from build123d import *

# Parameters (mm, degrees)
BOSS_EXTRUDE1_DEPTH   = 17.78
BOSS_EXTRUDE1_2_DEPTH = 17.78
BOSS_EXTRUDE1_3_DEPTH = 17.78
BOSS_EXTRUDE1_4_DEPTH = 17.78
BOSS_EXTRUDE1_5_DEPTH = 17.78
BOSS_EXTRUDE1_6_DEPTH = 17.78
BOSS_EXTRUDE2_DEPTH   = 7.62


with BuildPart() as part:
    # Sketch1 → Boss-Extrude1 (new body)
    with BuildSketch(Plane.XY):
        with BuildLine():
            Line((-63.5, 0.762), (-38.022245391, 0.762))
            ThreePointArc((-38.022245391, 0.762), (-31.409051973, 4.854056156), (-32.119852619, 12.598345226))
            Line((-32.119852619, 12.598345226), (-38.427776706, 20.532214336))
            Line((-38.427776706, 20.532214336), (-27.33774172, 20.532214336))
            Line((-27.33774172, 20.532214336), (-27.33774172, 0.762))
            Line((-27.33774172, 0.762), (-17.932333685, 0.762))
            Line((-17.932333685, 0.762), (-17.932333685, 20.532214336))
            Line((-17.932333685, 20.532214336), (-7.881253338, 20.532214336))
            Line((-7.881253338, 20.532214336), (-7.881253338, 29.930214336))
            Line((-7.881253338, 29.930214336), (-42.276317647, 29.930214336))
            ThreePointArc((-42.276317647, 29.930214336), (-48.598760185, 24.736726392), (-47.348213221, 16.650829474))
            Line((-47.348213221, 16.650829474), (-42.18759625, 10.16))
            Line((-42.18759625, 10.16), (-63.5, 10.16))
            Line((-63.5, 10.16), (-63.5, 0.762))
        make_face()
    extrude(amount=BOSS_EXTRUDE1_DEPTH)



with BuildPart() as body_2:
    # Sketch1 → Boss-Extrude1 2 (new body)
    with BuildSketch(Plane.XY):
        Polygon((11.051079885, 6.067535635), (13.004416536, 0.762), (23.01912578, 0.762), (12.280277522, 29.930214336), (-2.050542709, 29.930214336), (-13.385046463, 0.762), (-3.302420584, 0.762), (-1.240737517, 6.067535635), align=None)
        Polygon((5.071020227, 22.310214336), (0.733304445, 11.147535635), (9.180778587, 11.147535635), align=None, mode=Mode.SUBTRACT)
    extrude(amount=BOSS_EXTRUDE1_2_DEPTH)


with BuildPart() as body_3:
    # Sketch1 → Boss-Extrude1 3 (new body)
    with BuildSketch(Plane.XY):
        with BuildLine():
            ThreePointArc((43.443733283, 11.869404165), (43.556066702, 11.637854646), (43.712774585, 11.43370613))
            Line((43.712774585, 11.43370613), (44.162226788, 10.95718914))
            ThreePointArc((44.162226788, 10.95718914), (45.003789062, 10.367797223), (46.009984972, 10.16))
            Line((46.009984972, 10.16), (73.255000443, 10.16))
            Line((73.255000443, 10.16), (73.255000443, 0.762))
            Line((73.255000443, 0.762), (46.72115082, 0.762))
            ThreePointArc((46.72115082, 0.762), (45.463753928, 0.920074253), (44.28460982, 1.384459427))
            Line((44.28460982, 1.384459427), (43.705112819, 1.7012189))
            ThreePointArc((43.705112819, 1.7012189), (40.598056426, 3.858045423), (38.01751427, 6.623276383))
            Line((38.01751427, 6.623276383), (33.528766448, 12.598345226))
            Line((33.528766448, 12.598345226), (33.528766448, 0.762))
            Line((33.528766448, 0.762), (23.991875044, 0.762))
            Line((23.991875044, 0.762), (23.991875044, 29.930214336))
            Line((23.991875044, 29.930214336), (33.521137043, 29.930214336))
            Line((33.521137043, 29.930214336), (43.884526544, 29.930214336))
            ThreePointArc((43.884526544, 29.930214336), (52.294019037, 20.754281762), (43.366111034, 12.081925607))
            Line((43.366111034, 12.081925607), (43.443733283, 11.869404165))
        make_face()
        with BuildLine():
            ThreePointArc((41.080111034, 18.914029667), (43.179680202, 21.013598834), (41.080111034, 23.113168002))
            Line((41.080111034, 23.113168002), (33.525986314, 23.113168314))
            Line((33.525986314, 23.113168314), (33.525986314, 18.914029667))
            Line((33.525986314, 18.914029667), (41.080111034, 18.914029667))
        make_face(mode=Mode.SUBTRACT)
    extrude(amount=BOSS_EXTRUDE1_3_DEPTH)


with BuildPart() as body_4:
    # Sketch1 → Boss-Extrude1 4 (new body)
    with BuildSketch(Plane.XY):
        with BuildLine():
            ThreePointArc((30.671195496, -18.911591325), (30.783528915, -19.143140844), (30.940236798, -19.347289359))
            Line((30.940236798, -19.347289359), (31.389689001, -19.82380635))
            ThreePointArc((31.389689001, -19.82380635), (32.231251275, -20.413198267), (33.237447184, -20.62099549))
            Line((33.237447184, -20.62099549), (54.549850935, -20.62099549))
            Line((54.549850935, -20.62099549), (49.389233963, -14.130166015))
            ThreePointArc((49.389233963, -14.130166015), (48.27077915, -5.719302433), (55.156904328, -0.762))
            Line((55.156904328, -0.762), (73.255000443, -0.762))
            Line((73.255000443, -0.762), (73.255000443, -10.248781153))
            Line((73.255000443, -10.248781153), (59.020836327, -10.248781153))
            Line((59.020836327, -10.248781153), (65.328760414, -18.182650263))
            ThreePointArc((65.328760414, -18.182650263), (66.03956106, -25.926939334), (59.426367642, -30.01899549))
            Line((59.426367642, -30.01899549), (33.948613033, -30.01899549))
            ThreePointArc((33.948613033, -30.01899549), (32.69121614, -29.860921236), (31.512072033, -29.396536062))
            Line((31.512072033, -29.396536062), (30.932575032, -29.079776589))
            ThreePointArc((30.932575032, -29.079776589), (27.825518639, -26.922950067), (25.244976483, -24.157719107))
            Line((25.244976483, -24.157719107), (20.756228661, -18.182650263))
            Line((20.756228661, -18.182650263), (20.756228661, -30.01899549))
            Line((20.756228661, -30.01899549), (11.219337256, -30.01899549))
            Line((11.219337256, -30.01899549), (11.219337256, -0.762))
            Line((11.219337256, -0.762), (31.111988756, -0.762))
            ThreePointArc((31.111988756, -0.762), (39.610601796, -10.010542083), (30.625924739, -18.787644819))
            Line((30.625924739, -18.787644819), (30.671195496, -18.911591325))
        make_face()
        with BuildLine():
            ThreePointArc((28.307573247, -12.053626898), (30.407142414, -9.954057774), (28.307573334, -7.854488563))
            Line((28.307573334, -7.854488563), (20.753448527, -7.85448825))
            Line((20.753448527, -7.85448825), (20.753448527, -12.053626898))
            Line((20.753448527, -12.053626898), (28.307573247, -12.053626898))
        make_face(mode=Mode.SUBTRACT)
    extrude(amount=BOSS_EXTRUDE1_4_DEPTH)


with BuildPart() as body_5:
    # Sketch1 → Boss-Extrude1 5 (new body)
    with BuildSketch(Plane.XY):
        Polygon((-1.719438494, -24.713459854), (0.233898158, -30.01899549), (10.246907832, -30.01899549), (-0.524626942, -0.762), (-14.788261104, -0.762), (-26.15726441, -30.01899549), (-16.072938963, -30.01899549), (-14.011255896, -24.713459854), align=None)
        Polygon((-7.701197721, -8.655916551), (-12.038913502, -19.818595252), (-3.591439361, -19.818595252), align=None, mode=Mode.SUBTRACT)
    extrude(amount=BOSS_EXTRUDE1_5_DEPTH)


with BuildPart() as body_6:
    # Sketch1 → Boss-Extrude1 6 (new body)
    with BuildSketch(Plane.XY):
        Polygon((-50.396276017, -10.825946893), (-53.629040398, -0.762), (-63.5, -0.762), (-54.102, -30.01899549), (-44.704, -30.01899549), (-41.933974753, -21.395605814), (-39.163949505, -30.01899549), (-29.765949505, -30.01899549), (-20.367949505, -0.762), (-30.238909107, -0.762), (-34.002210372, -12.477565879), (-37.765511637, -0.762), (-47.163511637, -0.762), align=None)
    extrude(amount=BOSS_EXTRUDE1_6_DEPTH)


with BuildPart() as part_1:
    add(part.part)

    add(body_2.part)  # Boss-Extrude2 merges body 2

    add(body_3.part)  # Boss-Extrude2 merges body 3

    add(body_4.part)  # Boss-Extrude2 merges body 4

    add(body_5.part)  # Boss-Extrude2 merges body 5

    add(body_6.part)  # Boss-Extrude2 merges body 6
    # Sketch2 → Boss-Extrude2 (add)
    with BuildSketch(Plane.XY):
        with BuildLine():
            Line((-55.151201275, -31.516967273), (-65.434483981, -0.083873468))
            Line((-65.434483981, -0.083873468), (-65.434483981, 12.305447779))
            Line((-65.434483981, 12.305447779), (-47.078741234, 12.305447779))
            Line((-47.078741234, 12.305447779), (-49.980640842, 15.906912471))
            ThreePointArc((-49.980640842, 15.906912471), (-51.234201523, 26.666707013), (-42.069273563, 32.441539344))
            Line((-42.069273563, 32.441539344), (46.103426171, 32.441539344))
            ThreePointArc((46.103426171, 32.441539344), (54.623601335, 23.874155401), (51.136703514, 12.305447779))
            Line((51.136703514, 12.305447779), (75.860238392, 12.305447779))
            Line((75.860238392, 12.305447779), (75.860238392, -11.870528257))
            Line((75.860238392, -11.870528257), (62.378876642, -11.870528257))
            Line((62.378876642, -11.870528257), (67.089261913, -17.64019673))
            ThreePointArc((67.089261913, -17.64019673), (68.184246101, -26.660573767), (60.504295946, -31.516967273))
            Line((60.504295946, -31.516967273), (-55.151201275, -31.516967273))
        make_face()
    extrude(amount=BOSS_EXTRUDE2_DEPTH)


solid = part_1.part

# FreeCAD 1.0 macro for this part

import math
import FreeCAD as App
import Part
import Sketcher
Q = App.Units.Quantity


def add_polygon(sketch, points):
    """Adds a closed chain of lines whose ends are joined by coincident constraints."""
    first, n = sketch.GeometryCount, len(points)
    for a, b in zip(points, points[1:] + points[:1]):
        sketch.addGeometry(Part.LineSegment(App.Vector(*a, 0), App.Vector(*b, 0)), False)
    for i in range(n):
        sketch.addConstraint(Sketcher.Constraint("Coincident", first + i, 2, first + (i + 1) % n, 1))

doc = App.newDocument("Part")
body = doc.addObject("PartDesign::Body", "Body")

sketch1 = doc.addObject("Sketcher::SketchObject", "Sketch")
body.addObject(sketch1)
sketch1.AttachmentSupport = (doc.XY_Plane, [""])
sketch1.MapMode = "FlatFace"
sketch1.addGeometry(Part.LineSegment(App.Vector(-64, 1, 0), App.Vector(-38, 1, 0)), False)
sketch1.addGeometry(Part.ArcOfCircle(Part.Circle(App.Vector(-38, 8, 0), App.Vector(0, 0, 1), 7), math.radians(-90), math.radians(37)), False)
sketch1.addGeometry(Part.LineSegment(App.Vector(-32, 13, 0), App.Vector(-38, 21, 0)), False)
sketch1.addGeometry(Part.LineSegment(App.Vector(-38, 21, 0), App.Vector(-27, 21, 0)), False)
sketch1.addGeometry(Part.LineSegment(App.Vector(-27, 21, 0), App.Vector(-27, 1, 0)), False)
sketch1.addGeometry(Part.LineSegment(App.Vector(-27, 1, 0), App.Vector(-18, 1, 0)), False)
sketch1.addGeometry(Part.LineSegment(App.Vector(-18, 1, 0), App.Vector(-18, 21, 0)), False)
sketch1.addGeometry(Part.LineSegment(App.Vector(-18, 21, 0), App.Vector(-8, 21, 0)), False)
sketch1.addGeometry(Part.LineSegment(App.Vector(-8, 21, 0), App.Vector(-8, 30, 0)), False)
sketch1.addGeometry(Part.LineSegment(App.Vector(-8, 30, 0), App.Vector(-42, 30, 0)), False)
sketch1.addGeometry(Part.ArcOfCircle(Part.Circle(App.Vector(-41, 22, 0), App.Vector(0, 0, 1), 8), math.radians(100), math.radians(218)), False)
sketch1.addGeometry(Part.LineSegment(App.Vector(-47, 17, 0), App.Vector(-42, 10, 0)), False)
sketch1.addGeometry(Part.LineSegment(App.Vector(-42, 10, 0), App.Vector(-64, 10, 0)), False)
sketch1.addGeometry(Part.LineSegment(App.Vector(-64, 10, 0), App.Vector(-64, 1, 0)), False)
sketch1.addConstraint(Sketcher.Constraint("Tangent", 0, 2, 1, 1))
sketch1.addConstraint(Sketcher.Constraint("Coincident", 1, 2, 2, 1))
sketch1.addConstraint(Sketcher.Constraint("Coincident", 2, 2, 3, 1))
sketch1.addConstraint(Sketcher.Constraint("Coincident", 3, 2, 4, 1))
sketch1.addConstraint(Sketcher.Constraint("Coincident", 4, 2, 5, 1))
sketch1.addConstraint(Sketcher.Constraint("Coincident", 5, 2, 6, 1))
sketch1.addConstraint(Sketcher.Constraint("Coincident", 6, 2, 7, 1))
sketch1.addConstraint(Sketcher.Constraint("Coincident", 7, 2, 8, 1))
sketch1.addConstraint(Sketcher.Constraint("Coincident", 8, 2, 9, 1))
sketch1.addConstraint(Sketcher.Constraint("Coincident", 9, 2, 10, 1))
sketch1.addConstraint(Sketcher.Constraint("Tangent", 10, 2, 11, 1))
sketch1.addConstraint(Sketcher.Constraint("Coincident", 11, 2, 12, 1))
sketch1.addConstraint(Sketcher.Constraint("Coincident", 12, 2, 13, 1))
sketch1.addConstraint(Sketcher.Constraint("Coincident", 13, 2, 0, 1))
sketch1.addConstraint(Sketcher.Constraint("Horizontal", 0))
sketch1.addConstraint(Sketcher.Constraint("Horizontal", 3))
sketch1.addConstraint(Sketcher.Constraint("Vertical", 4))
sketch1.addConstraint(Sketcher.Constraint("Horizontal", 5))
sketch1.addConstraint(Sketcher.Constraint("Vertical", 6))
sketch1.addConstraint(Sketcher.Constraint("Horizontal", 7))
sketch1.addConstraint(Sketcher.Constraint("Vertical", 8))
sketch1.addConstraint(Sketcher.Constraint("Horizontal", 9))
sketch1.addConstraint(Sketcher.Constraint("Horizontal", 12))
sketch1.addConstraint(Sketcher.Constraint("Vertical", 13))
sketch1.addConstraint(Sketcher.Constraint("Parallel", 2, 11))
sketch1.addConstraint(Sketcher.Constraint("Horizontal", 0, 2, 4, 2))
sketch1.addConstraint(Sketcher.Constraint("Horizontal", 3, 2, 6, 2))
sketch1.addConstraint(Sketcher.Constraint("Equal", 8, 13))
sketch1.addConstraint(Sketcher.Constraint("DistanceY", 8, 1, 8, 2, Q("0.37 in")))
sketch1.addConstraint(Sketcher.Constraint("DistanceY", -1, 1, 11, 2, Q("0.4 in")))
sketch1.addConstraint(Sketcher.Constraint("DistanceX", 12, 2, -1, 1, Q("2.5 in")))
sketch1.addConstraint(Sketcher.Constraint("Radius", 1, 7.389836))
sketch1.addConstraint(Sketcher.Constraint("Radius", 10, 8.258208))
sketch1.addConstraint(Sketcher.Constraint("DistanceX", 5, 1, 5, 2, 9.405408))
sketch1.addConstraint(Sketcher.Constraint("DistanceX", 7, 1, 7, 2, 10.05108))
sketch1.addConstraint(Sketcher.Constraint("DistanceX", 1, 2, 7, 2, 24.238599))
sketch1.addConstraint(Sketcher.Constraint("DistanceX", 0, 1, 0, 2, 25.477755))
sketch1.addConstraint(Sketcher.Constraint("DistanceX", 3, 1, 3, 2, 11.090035))
sketch1.addConstraint(Sketcher.Constraint("DistanceX", 9, 2, 9, 1, 34.395064))
sketch1.addConstraint(Sketcher.Constraint("DistanceX", 12, 2, 12, 1, 21.312404))
sketch1.addConstraint(Sketcher.Constraint("DistanceY", 4, 2, 4, 1, 19.770214))
sketch1.addConstraint(Sketcher.Constraint("DistanceX", 3, 2, -1, 1, 27.337742))
pad1 = doc.addObject("PartDesign::Pad", "Pad")
body.addObject(pad1)
pad1.Profile = sketch1
pad1.Length = Q("0.7 in")
body2 = doc.addObject("PartDesign::Body", "Body001")

sketch2 = doc.addObject("Sketcher::SketchObject", "Sketch001")
body2.addObject(sketch2)
sketch2.AttachmentSupport = (doc.getObject("XY_Plane001"), [""])
sketch2.MapMode = "FlatFace"
add_polygon(sketch2, [(11, 6), (13, 1), (23, 1), (12, 30), (-2, 30), (-13, 1), (-3, 1), (-1, 6)])
add_polygon(sketch2, [(1, 11), (5, 22), (9, 11)])
sketch2.addConstraint(Sketcher.Constraint("Horizontal", 1))
sketch2.addConstraint(Sketcher.Constraint("Horizontal", 3))
sketch2.addConstraint(Sketcher.Constraint("Horizontal", 5))
sketch2.addConstraint(Sketcher.Constraint("Horizontal", 7))
sketch2.addConstraint(Sketcher.Constraint("Horizontal", 10))
sketch2.addConstraint(Sketcher.Constraint("Parallel", 0, 2))
sketch2.addConstraint(Sketcher.Constraint("Parallel", 4, 6))
sketch2.addConstraint(Sketcher.Constraint("Parallel", 6, 8))
sketch2.addConstraint(Sketcher.Constraint("Parallel", 2, 9))
sketch2.addConstraint(Sketcher.Constraint("Horizontal", 1, 2, 4, 2))
sketch2.addConstraint(Sketcher.Constraint("DistanceY", 8, 2, 3, 2, Q("0.3 in")))
sketch2.addConstraint(Sketcher.Constraint("DistanceY", 7, 2, 9, 2, Q("0.2 in")))
sketch2.addConstraint(Sketcher.Constraint("DistanceY", -1, 1, 0, 2, Q("0.03 in")))
sketch2.addConstraint(Sketcher.Constraint("DistanceX", 1, 1, 1, 2, 10.014709))
sketch2.addConstraint(Sketcher.Constraint("DistanceX", 3, 2, 3, 1, 14.33082))
sketch2.addConstraint(Sketcher.Constraint("DistanceX", 5, 2, 2, 2, 15.582698))
sketch2.addConstraint(Sketcher.Constraint("DistanceX", 5, 2, 7, 2, 14.3535))
sketch2.addConstraint(Sketcher.Constraint("DistanceX", 9, 2, 7, 2, 1.870301))
sketch2.addConstraint(Sketcher.Constraint("Distance", 0, 5.653692))
sketch2.addConstraint(Sketcher.Constraint("Distance", 2, 31.082271))
sketch2.addConstraint(Sketcher.Constraint("Distance", 4, 31.293062))
sketch2.addConstraint(Sketcher.Constraint("DistanceX", 5, 2, -1, 1, 3.302421))
pad2 = doc.addObject("PartDesign::Pad", "Pad001")
body2.addObject(pad2)
pad2.Profile = sketch2
pad2.Length = Q("0.7 in")
body3 = doc.addObject("PartDesign::Body", "Body002")

sketch3 = doc.addObject("Sketcher::SketchObject", "Sketch002")
body3.addObject(sketch3)
sketch3.AttachmentSupport = (doc.getObject("XY_Plane002"), [""])
sketch3.MapMode = "FlatFace"
sketch3.addGeometry(Part.ArcOfCircle(Part.Circle(App.Vector(44.64, 12.31, 0), App.Vector(0, 0, 1), 1.27), math.radians(-160), math.radians(-137)), False)
sketch3.addGeometry(Part.LineSegment(App.Vector(43.44, 11.87, 0), App.Vector(43.37, 12.08, 0)), False)
sketch3.addGeometry(Part.ArcOfCircle(Part.Circle(App.Vector(43.37, 21.01, 0), App.Vector(0, 0, 1), 8.93), math.radians(-90), math.radians(87)), False)
sketch3.addGeometry(Part.LineSegment(App.Vector(43.88, 29.93, 0), App.Vector(23.99, 29.93, 0)), False)
sketch3.addGeometry(Part.LineSegment(App.Vector(23.99, 29.93, 0), App.Vector(23.99, 0.76, 0)), False)
sketch3.addGeometry(Part.LineSegment(App.Vector(23.99, 0.76, 0), App.Vector(33.53, 0.76, 0)), False)
sketch3.addGeometry(Part.LineSegment(App.Vector(33.53, 0.76, 0), App.Vector(33.53, 12.6, 0)), False)
sketch3.addGeometry(Part.LineSegment(App.Vector(33.53, 12.6, 0), App.Vector(38.02, 6.62, 0)), False)
sketch3.addGeometry(Part.ArcOfCircle(Part.Circle(App.Vector(52.23, 17.3, 0), App.Vector(0, 0, 1), 17.78), math.radians(-143), math.radians(-119)), False)
sketch3.addGeometry(Part.LineSegment(App.Vector(43.71, 1.7, 0), App.Vector(44.28, 1.38, 0)), False)
sketch3.addGeometry(Part.ArcOfCircle(Part.Circle(App.Vector(46.72, 5.84, 0), App.Vector(0, 0, 1), 5.08), math.radians(-119), math.radians(-90)), False)
sketch3.addGeometry(Part.LineSegment(App.Vector(46.72, 0.76, 0), App.Vector(73.26, 0.76, 0)), False)
sketch3.addGeometry(Part.LineSegment(App.Vector(73.26, 0.76, 0), App.Vector(73.26, 10.16, 0)), False)
sketch3.addGeometry(Part.LineSegment(App.Vector(73.26, 10.16, 0), App.Vector(46.01, 10.16, 0)), False)
sketch3.addGeometry(Part.ArcOfCircle(Part.Circle(App.Vector(46.01, 12.7, 0), App.Vector(0, 0, 1), 2.54), math.radians(-137), math.radians(-90)), False)
sketch3.addGeometry(Part.LineSegment(App.Vector(44.16, 10.96, 0), App.Vector(43.71, 11.43, 0)), False)
sketch3.addGeometry(Part.LineSegment(App.Vector(41.08, 18.91, 0), App.Vector(33.53, 18.91, 0)), False)
sketch3.addGeometry(Part.LineSegment(App.Vector(33.53, 18.91, 0), App.Vector(33.53, 23.11, 0)), False)
sketch3.addGeometry(Part.LineSegment(App.Vector(33.53, 23.11, 0), App.Vector(41.08, 23.11, 0)), False)
sketch3.addGeometry(Part.ArcOfCircle(Part.Circle(App.Vector(41.08, 21.01, 0), App.Vector(0, 0, 1), 2.1), math.radians(-90), math.radians(90)), False)
sketch3.addConstraint(Sketcher.Constraint("Tangent", 0, 1, 1, 1))
sketch3.addConstraint(Sketcher.Constraint("Coincident", 1, 2, 2, 1))
sketch3.addConstraint(Sketcher.Constraint("Coincident", 2, 2, 3, 1))
sketch3.addConstraint(Sketcher.Constraint("Coincident", 3, 2, 4, 1))
sketch3.addConstraint(Sketcher.Constraint("Coincident", 4, 2, 5, 1))
sketch3.addConstraint(Sketcher.Constraint("Coincident", 5, 2, 6, 1))
sketch3.addConstraint(Sketcher.Constraint("Coincident", 6, 2, 7, 1))
sketch3.addConstraint(Sketcher.Constraint("Tangent", 7, 2, 8, 1))
sketch3.addConstraint(Sketcher.Constraint("Tangent", 8, 2, 9, 1))
sketch3.addConstraint(Sketcher.Constraint("Tangent", 9, 2, 10, 1))
sketch3.addConstraint(Sketcher.Constraint("Tangent", 10, 2, 11, 1))
sketch3.addConstraint(Sketcher.Constraint("Coincident", 11, 2, 12, 1))
sketch3.addConstraint(Sketcher.Constraint("Coincident", 12, 2, 13, 1))
sketch3.addConstraint(Sketcher.Constraint("Tangent", 13, 2, 14, 2))
sketch3.addConstraint(Sketcher.Constraint("Tangent", 14, 1, 15, 1))
sketch3.addConstraint(Sketcher.Constraint("Tangent", 15, 2, 0, 2))
sketch3.addConstraint(Sketcher.Constraint("Coincident", 16, 2, 17, 1))
sketch3.addConstraint(Sketcher.Constraint("Coincident", 17, 2, 18, 1))
sketch3.addConstraint(Sketcher.Constraint("Tangent", 18, 2, 19, 2))
sketch3.addConstraint(Sketcher.Constraint("Tangent", 19, 1, 16, 1))
sketch3.addConstraint(Sketcher.Constraint("Horizontal", 3))
sketch3.addConstraint(Sketcher.Constraint("Vertical", 4))
sketch3.addConstraint(Sketcher.Constraint("Horizontal", 5))
sketch3.addConstraint(Sketcher.Constraint("Vertical", 6))
sketch3.addConstraint(Sketcher.Constraint("Horizontal", 11))
sketch3.addConstraint(Sketcher.Constraint("Vertical", 12))
sketch3.addConstraint(Sketcher.Constraint("Horizontal", 13))
sketch3.addConstraint(Sketcher.Constraint("Horizontal", 16))
sketch3.addConstraint(Sketcher.Constraint("Vertical", 17))
sketch3.addConstraint(Sketcher.Constraint("Horizontal", 18))
sketch3.addConstraint(Sketcher.Constraint("Horizontal", 2, 3, 19, 3))
sketch3.addConstraint(Sketcher.Constraint("Horizontal", 5, 2, 10, 2))
sketch3.addConstraint(Sketcher.Constraint("Vertical", 2, 3, 1, 2))
sketch3.addConstraint(Sketcher.Constraint("Radius", 8, Q("0.7 in")))
sketch3.addConstraint(Sketcher.Constraint("Radius", 10, Q("0.2 in")))
sketch3.addConstraint(Sketcher.Constraint("Radius", 14, Q("0.1 in")))
sketch3.addConstraint(Sketcher.Constraint("Radius", 0, Q("0.05 in")))
sketch3.addConstraint(Sketcher.Constraint("DistanceY", 12, 1, 12, 2, Q("0.37 in")))
sketch3.addConstraint(Sketcher.Constraint("DistanceY", -1, 1, 14, 3, Q("0.5 in")))
sketch3.addConstraint(Sketcher.Constraint("DistanceX", 19, 3, 2, 3, Q("0.09 in")))
sketch3.addConstraint(Sketcher.Constraint("Radius", 19, 2.099569))
sketch3.addConstraint(Sketcher.Constraint("Radius", 2, 8.931673))
sketch3.addConstraint(Sketcher.Constraint("DistanceX", 3, 2, 3, 1, 19.892652))
sketch3.addConstraint(Sketcher.Constraint("DistanceX", 5, 1, 5, 2, 9.536891))
sketch3.addConstraint(Sketcher.Constraint("DistanceX", 11, 1, 11, 2, 26.53385))
sketch3.addConstraint(Sketcher.Constraint("DistanceY", -1, 1, 2, 3, 21.013599))
sketch3.addConstraint(Sketcher.Constraint("DistanceX", -1, 1, 11, 2, 73.255))
sketch3.addConstraint(Sketcher.Constraint("DistanceY", 0, 3, 8, 3, 4.997499))
sketch3.addConstraint(Sketcher.Constraint("DistanceX", 7, 2, 8, 2, 5.687599))
sketch3.addConstraint(Sketcher.Constraint("DistanceX", 1, 2, 8, 2, 0.339002))
sketch3.addConstraint(Sketcher.Constraint("DistanceX", 1, 2, 9, 2, 0.918499))
sketch3.addConstraint(Sketcher.Constraint("DistanceY", 15, 2, 0, 1, 0.435698))
sketch3.addConstraint(Sketcher.Constraint("Distance", 9, 0.660419))
sketch3.addConstraint(Sketcher.Constraint("Distance", 15, 0.655039))
sketch3.addConstraint(Sketcher.Constraint("DistanceX", 16, 2, 16, 1, 7.554125))
sketch3.addConstraint(Sketcher.Constraint("DistanceY", 4, 2, 4, 1, 29.168214))
pad3 = doc.addObject("PartDesign::Pad", "Pad002")
body3.addObject(pad3)
pad3.Profile = sketch3
pad3.Length = Q("0.7 in")
body4 = doc.addObject("PartDesign::Body", "Body003")

sketch4 = doc.addObject("Sketcher::SketchObject", "Sketch003")
body4.addObject(sketch4)
sketch4.AttachmentSupport = (doc.getObject("XY_Plane003"), [""])
sketch4.MapMode = "FlatFace"
sketch4.addGeometry(Part.ArcOfCircle(Part.Circle(App.Vector(31.86, -18.48, 0), App.Vector(0, 0, 1), 1.27), math.radians(-160), math.radians(-137)), False)
sketch4.addGeometry(Part.LineSegment(App.Vector(30.67, -18.91, 0), App.Vector(30.63, -18.79, 0)), False)
sketch4.addGeometry(Part.ArcOfCircle(Part.Circle(App.Vector(30.59, -9.77, 0), App.Vector(0, 0, 1), 9.02), math.radians(-90), math.radians(87)), False)
sketch4.addGeometry(Part.LineSegment(App.Vector(31.11, -0.76, 0), App.Vector(11.22, -0.76, 0)), False)
sketch4.addGeometry(Part.LineSegment(App.Vector(11.22, -0.76, 0), App.Vector(11.22, -30.02, 0)), False)
sketch4.addGeometry(Part.LineSegment(App.Vector(11.22, -30.02, 0), App.Vector(20.76, -30.02, 0)), False)
sketch4.addGeometry(Part.LineSegment(App.Vector(20.76, -30.02, 0), App.Vector(20.76, -18.18, 0)), False)
sketch4.addGeometry(Part.LineSegment(App.Vector(20.76, -18.18, 0), App.Vector(25.24, -24.16, 0)), False)
sketch4.addGeometry(Part.ArcOfCircle(Part.Circle(App.Vector(39.46, -13.48, 0), App.Vector(0, 0, 1), 17.78), math.radians(-143), math.radians(-119)), False)
sketch4.addGeometry(Part.LineSegment(App.Vector(30.93, -29.08, 0), App.Vector(31.51, -29.4, 0)), False)
sketch4.addGeometry(Part.ArcOfCircle(Part.Circle(App.Vector(33.95, -24.94, 0), App.Vector(0, 0, 1), 5.08), math.radians(-119), math.radians(-90)), False)
sketch4.addGeometry(Part.LineSegment(App.Vector(33.95, -30.02, 0), App.Vector(59.43, -30.02, 0)), False)
sketch4.addGeometry(Part.ArcOfCircle(Part.Circle(App.Vector(59.43, -22.63, 0), App.Vector(0, 0, 1), 7.39), math.radians(-90), math.radians(37)), False)
sketch4.addGeometry(Part.LineSegment(App.Vector(65.33, -18.18, 0), App.Vector(59.02, -10.25, 0)), False)
sketch4.addGeometry(Part.LineSegment(App.Vector(59.02, -10.25, 0), App.Vector(73.26, -10.25, 0)), False)
sketch4.addGeometry(Part.LineSegment(App.Vector(73.26, -10.25, 0), App.Vector(73.26, -0.76, 0)), False)
sketch4.addGeometry(Part.LineSegment(App.Vector(73.26, -0.76, 0), App.Vector(55.16, -0.76, 0)), False)
sketch4.addGeometry(Part.ArcOfCircle(Part.Circle(App.Vector(55.85, -8.99, 0), App.Vector(0, 0, 1), 8.26), math.radians(95), math.radians(218)), False)
sketch4.addGeometry(Part.LineSegment(App.Vector(49.39, -14.13, 0), App.Vector(54.55, -20.62, 0)), False)
sketch4.addGeometry(Part.LineSegment(App.Vector(54.55, -20.62, 0), App.Vector(33.24, -20.62, 0)), False)
sketch4.addGeometry(Part.ArcOfCircle(Part.Circle(App.Vector(33.24, -18.08, 0), App.Vector(0, 0, 1), 2.54), math.radians(-137), math.radians(-90)), False)
sketch4.addGeometry(Part.LineSegment(App.Vector(31.39, -19.82, 0), App.Vector(30.94, -19.35, 0)), False)
sketch4.addGeometry(Part.LineSegment(App.Vector(28.31, -12.05, 0), App.Vector(20.75, -12.05, 0)), False)
sketch4.addGeometry(Part.LineSegment(App.Vector(20.75, -12.05, 0), App.Vector(20.75, -7.85, 0)), False)
sketch4.addGeometry(Part.LineSegment(App.Vector(20.75, -7.85, 0), App.Vector(28.31, -7.85, 0)), False)
sketch4.addGeometry(Part.ArcOfCircle(Part.Circle(App.Vector(28.31, -9.95, 0), App.Vector(0, 0, 1), 2.1), math.radians(-90), math.radians(90)), False)
sketch4.addConstraint(Sketcher.Constraint("Tangent", 0, 1, 1, 1))
sketch4.addConstraint(Sketcher.Constraint("Coincident", 1, 2, 2, 1))
sketch4.addConstraint(Sketcher.Constraint("Coincident", 2, 2, 3, 1))
sketch4.addConstraint(Sketcher.Constraint("Coincident", 3, 2, 4, 1))
sketch4.addConstraint(Sketcher.Constraint("Coincident", 4, 2, 5, 1))
sketch4.addConstraint(Sketcher.Constraint("Coincident", 5, 2, 6, 1))
sketch4.addConstraint(Sketcher.Constraint("Coincident", 6, 2, 7, 1))
sketch4.addConstraint(Sketcher.Constraint("Tangent", 7, 2, 8, 1))
sketch4.addConstraint(Sketcher.Constraint("Tangent", 8, 2, 9, 1))
sketch4.addConstraint(Sketcher.Constraint("Tangent", 9, 2, 10, 1))
sketch4.addConstraint(Sketcher.Constraint("Tangent", 10, 2, 11, 1))
sketch4.addConstraint(Sketcher.Constraint("Tangent", 11, 2, 12, 1))
sketch4.addConstraint(Sketcher.Constraint("Coincident", 12, 2, 13, 1))
sketch4.addConstraint(Sketcher.Constraint("Coincident", 13, 2, 14, 1))
sketch4.addConstraint(Sketcher.Constraint("Coincident", 14, 2, 15, 1))
sketch4.addConstraint(Sketcher.Constraint("Coincident", 15, 2, 16, 1))
sketch4.addConstraint(Sketcher.Constraint("Coincident", 16, 2, 17, 1))
sketch4.addConstraint(Sketcher.Constraint("Tangent", 17, 2, 18, 1))
sketch4.addConstraint(Sketcher.Constraint("Coincident", 18, 2, 19, 1))
sketch4.addConstraint(Sketcher.Constraint("Tangent", 19, 2, 20, 2))
sketch4.addConstraint(Sketcher.Constraint("Tangent", 20, 1, 21, 1))
sketch4.addConstraint(Sketcher.Constraint("Tangent", 21, 2, 0, 2))
sketch4.addConstraint(Sketcher.Constraint("Coincident", 22, 2, 23, 1))
sketch4.addConstraint(Sketcher.Constraint("Coincident", 23, 2, 24, 1))
sketch4.addConstraint(Sketcher.Constraint("Tangent", 24, 2, 25, 2))
sketch4.addConstraint(Sketcher.Constraint("Tangent", 25, 1, 22, 1))
sketch4.addConstraint(Sketcher.Constraint("Horizontal", 3))
sketch4.addConstraint(Sketcher.Constraint("Vertical", 4))
sketch4.addConstraint(Sketcher.Constraint("Horizontal", 5))
sketch4.addConstraint(Sketcher.Constraint("Vertical", 6))
sketch4.addConstraint(Sketcher.Constraint("Horizontal", 11))
sketch4.addConstraint(Sketcher.Constraint("Horizontal", 14))
sketch4.addConstraint(Sketcher.Constraint("Vertical", 15))
sketch4.addConstraint(Sketcher.Constraint("Horizontal", 16))
sketch4.addConstraint(Sketcher.Constraint("Horizontal", 19))
sketch4.addConstraint(Sketcher.Constraint("Horizontal", 22))
sketch4.addConstraint(Sketcher.Constraint("Vertical", 23))
sketch4.addConstraint(Sketcher.Constraint("Horizontal", 24))
sketch4.addConstraint(Sketcher.Constraint("Parallel", 13, 18))
sketch4.addConstraint(Sketcher.Constraint("Horizontal", 5, 2, 10, 2))
sketch4.addConstraint(Sketcher.Constraint("Horizontal", 6, 2, 12, 2))
sketch4.addConstraint(Sketcher.Constraint("Horizontal", 3, 2, 15, 2))
sketch4.addConstraint(Sketcher.Constraint("Radius", 8, Q("0.7 in")))
sketch4.addConstraint(Sketcher.Constraint("Radius", 10, Q("0.2 in")))
sketch4.addConstraint(Sketcher.Constraint("Radius", 20, Q("0.1 in")))
sketch4.addConstraint(Sketcher.Constraint("Radius", 0, Q("0.05 in")))
sketch4.addConstraint(Sketcher.Constraint("DistanceY", 2, 2, -1, 1, Q("0.03 in")))
sketch4.addConstraint(Sketcher.Constraint("DistanceY", 10, 3, 20, 3, Q("0.27 in")))
sketch4.addConstraint(Sketcher.Constraint("DistanceX", 25, 3, 2, 3, Q("0.09 in")))
sketch4.addConstraint(Sketcher.Constraint("DistanceX", 14, 1, 14, 2, Q("0.5604002 in")))
sketch4.addConstraint(Sketcher.Constraint("Radius", 25, 2.099569))
sketch4.addConstraint(Sketcher.Constraint("Radius", 2, 9.020306))
sketch4.addConstraint(Sketcher.Constraint("Radius", 12, 7.389836))
sketch4.addConstraint(Sketcher.Constraint("Radius", 17, 8.258208))
sketch4.addConstraint(Sketcher.Constraint("DistanceY", 6, 2, 22, 2, Q("0.2413001 in")))
sketch4.addConstraint(Sketcher.Constraint("DistanceX", 3, 2, 3, 1, 19.892651))
sketch4.addConstraint(Sketcher.Constraint("DistanceX", 5, 1, 5, 2, 9.536891))
sketch4.addConstraint(Sketcher.Constraint("DistanceY", 15, 1, 15, 2, 9.486781))
sketch4.addConstraint(Sketcher.Constraint("DistanceX", -1, 1, 14, 2, 73.255))
sketch4.addConstraint(Sketcher.Constraint("DistanceY", 0, 3, 8, 3, 4.997499))
sketch4.addConstraint(Sketcher.Constraint("DistanceY", 10, 3, 2, 3, 15.171599))
sketch4.addConstraint(Sketcher.Constraint("DistanceX", 8, 3, 12, 3, 19.965899))
sketch4.addConstraint(Sketcher.Constraint("DistanceX", 7, 2, 8, 2, 5.687599))
sketch4.addConstraint(Sketcher.Constraint("DistanceY", 21, 2, 0, 1, 0.435698))
sketch4.addConstraint(Sketcher.Constraint("Distance", 9, 0.660419))
sketch4.addConstraint(Sketcher.Constraint("Distance", 21, 0.655039))
sketch4.addConstraint(Sketcher.Constraint("DistanceX", 11, 1, 11, 2, 25.477755))
sketch4.addConstraint(Sketcher.Constraint("DistanceX", 16, 2, 16, 1, 18.098096))
sketch4.addConstraint(Sketcher.Constraint("DistanceX", 19, 2, 19, 1, 21.312404))
sketch4.addConstraint(Sketcher.Constraint("DistanceX", 22, 2, 22, 1, 7.554125))
sketch4.addConstraint(Sketcher.Constraint("DistanceY", 4, 2, 4, 1, 29.256995))
sketch4.addConstraint(Sketcher.Constraint("DistanceY", 6, 1, 6, 2, 11.836345))
sketch4.addConstraint(Sketcher.Constraint("DistanceX", -1, 1, 8, 3, 39.460469))
sketch4.addConstraint(Sketcher.Constraint("DistanceX", -1, 1, 17, 3, 55.853349))
pad4 = doc.addObject("PartDesign::Pad", "Pad003")
body4.addObject(pad4)
pad4.Profile = sketch4
pad4.Length = Q("0.7 in")
body5 = doc.addObject("PartDesign::Body", "Body004")

sketch5 = doc.addObject("Sketcher::SketchObject", "Sketch004")
body5.addObject(sketch5)
sketch5.AttachmentSupport = (doc.getObject("XY_Plane004"), [""])
sketch5.MapMode = "FlatFace"
add_polygon(sketch5, [(-2, -25), (0, -30), (10, -30), (-1, -1), (-15, -1), (-26, -30), (-16, -30), (-14, -25)])
add_polygon(sketch5, [(-12, -20), (-8, -9), (-4, -20)])
sketch5.addConstraint(Sketcher.Constraint("Horizontal", 1))
sketch5.addConstraint(Sketcher.Constraint("Horizontal", 3))
sketch5.addConstraint(Sketcher.Constraint("Horizontal", 5))
sketch5.addConstraint(Sketcher.Constraint("Horizontal", 7))
sketch5.addConstraint(Sketcher.Constraint("Horizontal", 10))
sketch5.addConstraint(Sketcher.Constraint("Parallel", 0, 2))
sketch5.addConstraint(Sketcher.Constraint("Parallel", 4, 6))
sketch5.addConstraint(Sketcher.Constraint("Parallel", 6, 8))
sketch5.addConstraint(Sketcher.Constraint("Parallel", 2, 9))
sketch5.addConstraint(Sketcher.Constraint("Horizontal", 1, 2, 4, 2))
sketch5.addConstraint(Sketcher.Constraint("DistanceY", 2, 2, -1, 1, Q("0.03 in")))
sketch5.addConstraint(Sketcher.Constraint("DistanceX", 1, 1, 1, 2, 10.01301))
sketch5.addConstraint(Sketcher.Constraint("DistanceX", -1, 1, 0, 2, 0.233898))
sketch5.addConstraint(Sketcher.Constraint("DistanceX", 5, 2, 7, 2, 14.3535))
sketch5.addConstraint(Sketcher.Constraint("DistanceX", 9, 2, 7, 2, 1.872001))
sketch5.addConstraint(Sketcher.Constraint("DistanceY", 0, 2, 9, 2, 10.2004))
sketch5.addConstraint(Sketcher.Constraint("Distance", 0, 5.653692))
sketch5.addConstraint(Sketcher.Constraint("Distance", 2, 31.176878))
sketch5.addConstraint(Sketcher.Constraint("Distance", 4, 31.38831))
sketch5.addConstraint(Sketcher.Constraint("Distance", 9, 11.895189))
sketch5.addConstraint(Sketcher.Constraint("DistanceX", 3, 2, 3, 1, 14.263634))
sketch5.addConstraint(Sketcher.Constraint("DistanceX", 5, 1, 5, 2, 10.084325))
pad5 = doc.addObject("PartDesign::Pad", "Pad004")
body5.addObject(pad5)
pad5.Profile = sketch5
pad5.Length = Q("0.7 in")
body6 = doc.addObject("PartDesign::Body", "Body005")

sketch6 = doc.addObject("Sketcher::SketchObject", "Sketch005")
body6.addObject(sketch6)
sketch6.AttachmentSupport = (doc.getObject("XY_Plane005"), [""])
sketch6.MapMode = "FlatFace"
add_polygon(sketch6, [(-50, -11), (-54, -1), (-64, -1), (-54, -30), (-45, -30), (-42, -21), (-39, -30), (-30, -30), (-20, -1), (-30, -1), (-34, -12), (-38, -1), (-47, -1)])
sketch6.addConstraint(Sketcher.Constraint("Horizontal", 1))
sketch6.addConstraint(Sketcher.Constraint("Horizontal", 3))
sketch6.addConstraint(Sketcher.Constraint("Horizontal", 6))
sketch6.addConstraint(Sketcher.Constraint("Horizontal", 8))
sketch6.addConstraint(Sketcher.Constraint("Horizontal", 11))
sketch6.addConstraint(Sketcher.Constraint("Parallel", 0, 2))
sketch6.addConstraint(Sketcher.Constraint("Parallel", 2, 5))
sketch6.addConstraint(Sketcher.Constraint("Parallel", 4, 7))
sketch6.addConstraint(Sketcher.Constraint("Parallel", 7, 9))
sketch6.addConstraint(Sketcher.Constraint("Parallel", 5, 10))
sketch6.addConstraint(Sketcher.Constraint("Parallel", 9, 12))
sketch6.addConstraint(Sketcher.Constraint("Horizontal", 3, 2, 5, 2))
sketch6.addConstraint(Sketcher.Constraint("Horizontal", 1, 2, 7, 2))
sketch6.addConstraint(Sketcher.Constraint("Horizontal", 8, 2, 10, 2))
sketch6.addConstraint(Sketcher.Constraint("Equal", 3, 6))
sketch6.addConstraint(Sketcher.Constraint("Equal", 1, 8))
sketch6.addConstraint(Sketcher.Constraint("Equal", 6, 11))
sketch6.addConstraint(Sketcher.Constraint("Equal", 4, 5))
sketch6.addConstraint(Sketcher.Constraint("DistanceX", 3, 1, 3, 2, Q("0.37 in")))
sketch6.addConstraint(Sketcher.Constraint("DistanceX", 1, 2, -1, 1, Q("2.5 in")))
sketch6.addConstraint(Sketcher.Constraint("DistanceY", 0, 2, -1, 1, Q("0.03 in")))
sketch6.addConstraint(Sketcher.Constraint("DistanceX", 2, 2, -1, 1, Q("2.13 in")))
sketch6.addConstraint(Sketcher.Constraint("DistanceX", 1, 2, 1, 1, 9.87096))
sketch6.addConstraint(Sketcher.Constraint("DistanceX", 9, 2, 8, 2, 3.763301))
sketch6.addConstraint(Sketcher.Constraint("Distance", 0, 10.570421))
sketch6.addConstraint(Sketcher.Constraint("Distance", 2, 30.72937))
pad6 = doc.addObject("PartDesign::Pad", "Pad005")
body6.addObject(pad6)
pad6.Profile = sketch6
pad6.Length = Q("0.7 in")
body.AllowCompound = True
doc.recompute()

boolean = doc.addObject("PartDesign::Boolean", "Boolean")
body.addObject(boolean)
boolean.Type = "Fuse"
boolean.addObjects([body2])
doc.recompute()

boolean2 = doc.addObject("PartDesign::Boolean", "Boolean001")
body.addObject(boolean2)
boolean2.Type = "Fuse"
boolean2.addObjects([body3])
doc.recompute()

boolean3 = doc.addObject("PartDesign::Boolean", "Boolean002")
body.addObject(boolean3)
boolean3.Type = "Fuse"
boolean3.addObjects([body4])
doc.recompute()

boolean4 = doc.addObject("PartDesign::Boolean", "Boolean003")
body.addObject(boolean4)
boolean4.Type = "Fuse"
boolean4.addObjects([body5])
doc.recompute()

boolean5 = doc.addObject("PartDesign::Boolean", "Boolean004")
body.addObject(boolean5)
boolean5.Type = "Fuse"
boolean5.addObjects([body6])

sketch7 = doc.addObject("Sketcher::SketchObject", "Sketch006")
body.addObject(sketch7)
sketch7.AttachmentSupport = (doc.XY_Plane, [""])
sketch7.MapMode = "FlatFace"
sketch7.addGeometry(Part.LineSegment(App.Vector(-65.4, -0.1, 0), App.Vector(-55.2, -31.5, 0)), False)
sketch7.addGeometry(Part.LineSegment(App.Vector(-55.2, -31.5, 0), App.Vector(60.5, -31.5, 0)), False)
sketch7.addGeometry(Part.ArcOfCircle(Part.Circle(App.Vector(60.5, -23, 0), App.Vector(0, 0, 1), 8.5), math.radians(-90), math.radians(39)), False)
sketch7.addGeometry(Part.LineSegment(App.Vector(67.1, -17.6, 0), App.Vector(62.4, -11.9, 0)), False)
sketch7.addGeometry(Part.LineSegment(App.Vector(62.4, -11.9, 0), App.Vector(75.9, -11.9, 0)), False)
sketch7.addGeometry(Part.LineSegment(App.Vector(75.9, -11.9, 0), App.Vector(75.9, 12.3, 0)), False)
sketch7.addGeometry(Part.LineSegment(App.Vector(75.9, 12.3, 0), App.Vector(51.1, 12.3, 0)), False)
sketch7.addGeometry(Part.ArcOfCircle(Part.Circle(App.Vector(43.2, 21, 0), App.Vector(0, 0, 1), 11.8), math.radians(-48), math.radians(76)), False)
sketch7.addGeometry(Part.LineSegment(App.Vector(46.1, 32.4, 0), App.Vector(-42.1, 32.4, 0)), False)
sketch7.addGeometry(Part.ArcOfCircle(Part.Circle(App.Vector(-42.1, 22.3, 0), App.Vector(0, 0, 1), 10.2), math.radians(90), math.radians(219)), False)
sketch7.addGeometry(Part.LineSegment(App.Vector(-50, 15.9, 0), App.Vector(-47.1, 12.3, 0)), False)
sketch7.addGeometry(Part.LineSegment(App.Vector(-47.1, 12.3, 0), App.Vector(-65.4, 12.3, 0)), False)
sketch7.addGeometry(Part.LineSegment(App.Vector(-65.4, 12.3, 0), App.Vector(-65.4, -0.1, 0)), False)
sketch7.addConstraint(Sketcher.Constraint("Coincident", 0, 2, 1, 1))
sketch7.addConstraint(Sketcher.Constraint("Tangent", 1, 2, 2, 1))
sketch7.addConstraint(Sketcher.Constraint("Tangent", 2, 2, 3, 1))
sketch7.addConstraint(Sketcher.Constraint("Coincident", 3, 2, 4, 1))
sketch7.addConstraint(Sketcher.Constraint("Coincident", 4, 2, 5, 1))
sketch7.addConstraint(Sketcher.Constraint("Coincident", 5, 2, 6, 1))
sketch7.addConstraint(Sketcher.Constraint("Coincident", 6, 2, 7, 1))
sketch7.addConstraint(Sketcher.Constraint("Coincident", 7, 2, 8, 1))
sketch7.addConstraint(Sketcher.Constraint("Tangent", 8, 2, 9, 1))
sketch7.addConstraint(Sketcher.Constraint("Tangent", 9, 2, 10, 1))
sketch7.addConstraint(Sketcher.Constraint("Coincident", 10, 2, 11, 1))
sketch7.addConstraint(Sketcher.Constraint("Coincident", 11, 2, 12, 1))
sketch7.addConstraint(Sketcher.Constraint("Coincident", 12, 2, 0, 1))
sketch7.addConstraint(Sketcher.Constraint("Horizontal", 1))
sketch7.addConstraint(Sketcher.Constraint("Horizontal", 4))
sketch7.addConstraint(Sketcher.Constraint("Vertical", 5))
sketch7.addConstraint(Sketcher.Constraint("Horizontal", 6))
sketch7.addConstraint(Sketcher.Constraint("Horizontal", 8))
sketch7.addConstraint(Sketcher.Constraint("Horizontal", 11))
sketch7.addConstraint(Sketcher.Constraint("Vertical", 12))
sketch7.addConstraint(Sketcher.Constraint("Horizontal", 6, 2, 10, 2))
sketch7.addConstraint(Sketcher.Constraint("Radius", 9, Q("0.4 in")))
sketch7.addConstraint(Sketcher.Constraint("Radius", 7, 11.796021))
sketch7.addConstraint(Sketcher.Constraint("DistanceX", 8, 2, 8, 1, 88.1727))
sketch7.addConstraint(Sketcher.Constraint("Radius", 2, 8.500772))
sketch7.addConstraint(Sketcher.Constraint("DistanceX", 4, 1, 4, 2, 13.481362))
sketch7.addConstraint(Sketcher.Constraint("DistanceY", 12, 2, 12, 1, 12.389321))
sketch7.addConstraint(Sketcher.Constraint("DistanceY", -1, 1, 7, 3, 21.013599))
sketch7.addConstraint(Sketcher.Constraint("DistanceX", 0, 2, -1, 1, 55.151201))
sketch7.addConstraint(Sketcher.Constraint("DistanceY", 2, 3, 2, 2, 5.375998))
sketch7.addConstraint(Sketcher.Constraint("DistanceX", 9, 2, 10, 2, 2.9019))
sketch7.addConstraint(Sketcher.Constraint("DistanceX", 1, 1, 1, 2, 115.655497))
sketch7.addConstraint(Sketcher.Constraint("DistanceX", 6, 2, 6, 1, 24.723535))
sketch7.addConstraint(Sketcher.Constraint("DistanceX", 11, 2, 11, 1, 18.355743))
sketch7.addConstraint(Sketcher.Constraint("DistanceY", 5, 1, 5, 2, 24.175976))
sketch7.addConstraint(Sketcher.Constraint("DistanceX", -1, 1, 7, 3, 43.17968))
sketch7.addConstraint(Sketcher.Constraint("DistanceY", -1, 1, 9, 3, 22.281539))
sketch7.addConstraint(Sketcher.Constraint("DistanceY", 3, 2, -1, 1, 11.870528))
pad7 = doc.addObject("PartDesign::Pad", "Pad006")
body.addObject(pad7)
pad7.Profile = sketch7
pad7.Length = Q("0.3 in")

doc.recompute()
